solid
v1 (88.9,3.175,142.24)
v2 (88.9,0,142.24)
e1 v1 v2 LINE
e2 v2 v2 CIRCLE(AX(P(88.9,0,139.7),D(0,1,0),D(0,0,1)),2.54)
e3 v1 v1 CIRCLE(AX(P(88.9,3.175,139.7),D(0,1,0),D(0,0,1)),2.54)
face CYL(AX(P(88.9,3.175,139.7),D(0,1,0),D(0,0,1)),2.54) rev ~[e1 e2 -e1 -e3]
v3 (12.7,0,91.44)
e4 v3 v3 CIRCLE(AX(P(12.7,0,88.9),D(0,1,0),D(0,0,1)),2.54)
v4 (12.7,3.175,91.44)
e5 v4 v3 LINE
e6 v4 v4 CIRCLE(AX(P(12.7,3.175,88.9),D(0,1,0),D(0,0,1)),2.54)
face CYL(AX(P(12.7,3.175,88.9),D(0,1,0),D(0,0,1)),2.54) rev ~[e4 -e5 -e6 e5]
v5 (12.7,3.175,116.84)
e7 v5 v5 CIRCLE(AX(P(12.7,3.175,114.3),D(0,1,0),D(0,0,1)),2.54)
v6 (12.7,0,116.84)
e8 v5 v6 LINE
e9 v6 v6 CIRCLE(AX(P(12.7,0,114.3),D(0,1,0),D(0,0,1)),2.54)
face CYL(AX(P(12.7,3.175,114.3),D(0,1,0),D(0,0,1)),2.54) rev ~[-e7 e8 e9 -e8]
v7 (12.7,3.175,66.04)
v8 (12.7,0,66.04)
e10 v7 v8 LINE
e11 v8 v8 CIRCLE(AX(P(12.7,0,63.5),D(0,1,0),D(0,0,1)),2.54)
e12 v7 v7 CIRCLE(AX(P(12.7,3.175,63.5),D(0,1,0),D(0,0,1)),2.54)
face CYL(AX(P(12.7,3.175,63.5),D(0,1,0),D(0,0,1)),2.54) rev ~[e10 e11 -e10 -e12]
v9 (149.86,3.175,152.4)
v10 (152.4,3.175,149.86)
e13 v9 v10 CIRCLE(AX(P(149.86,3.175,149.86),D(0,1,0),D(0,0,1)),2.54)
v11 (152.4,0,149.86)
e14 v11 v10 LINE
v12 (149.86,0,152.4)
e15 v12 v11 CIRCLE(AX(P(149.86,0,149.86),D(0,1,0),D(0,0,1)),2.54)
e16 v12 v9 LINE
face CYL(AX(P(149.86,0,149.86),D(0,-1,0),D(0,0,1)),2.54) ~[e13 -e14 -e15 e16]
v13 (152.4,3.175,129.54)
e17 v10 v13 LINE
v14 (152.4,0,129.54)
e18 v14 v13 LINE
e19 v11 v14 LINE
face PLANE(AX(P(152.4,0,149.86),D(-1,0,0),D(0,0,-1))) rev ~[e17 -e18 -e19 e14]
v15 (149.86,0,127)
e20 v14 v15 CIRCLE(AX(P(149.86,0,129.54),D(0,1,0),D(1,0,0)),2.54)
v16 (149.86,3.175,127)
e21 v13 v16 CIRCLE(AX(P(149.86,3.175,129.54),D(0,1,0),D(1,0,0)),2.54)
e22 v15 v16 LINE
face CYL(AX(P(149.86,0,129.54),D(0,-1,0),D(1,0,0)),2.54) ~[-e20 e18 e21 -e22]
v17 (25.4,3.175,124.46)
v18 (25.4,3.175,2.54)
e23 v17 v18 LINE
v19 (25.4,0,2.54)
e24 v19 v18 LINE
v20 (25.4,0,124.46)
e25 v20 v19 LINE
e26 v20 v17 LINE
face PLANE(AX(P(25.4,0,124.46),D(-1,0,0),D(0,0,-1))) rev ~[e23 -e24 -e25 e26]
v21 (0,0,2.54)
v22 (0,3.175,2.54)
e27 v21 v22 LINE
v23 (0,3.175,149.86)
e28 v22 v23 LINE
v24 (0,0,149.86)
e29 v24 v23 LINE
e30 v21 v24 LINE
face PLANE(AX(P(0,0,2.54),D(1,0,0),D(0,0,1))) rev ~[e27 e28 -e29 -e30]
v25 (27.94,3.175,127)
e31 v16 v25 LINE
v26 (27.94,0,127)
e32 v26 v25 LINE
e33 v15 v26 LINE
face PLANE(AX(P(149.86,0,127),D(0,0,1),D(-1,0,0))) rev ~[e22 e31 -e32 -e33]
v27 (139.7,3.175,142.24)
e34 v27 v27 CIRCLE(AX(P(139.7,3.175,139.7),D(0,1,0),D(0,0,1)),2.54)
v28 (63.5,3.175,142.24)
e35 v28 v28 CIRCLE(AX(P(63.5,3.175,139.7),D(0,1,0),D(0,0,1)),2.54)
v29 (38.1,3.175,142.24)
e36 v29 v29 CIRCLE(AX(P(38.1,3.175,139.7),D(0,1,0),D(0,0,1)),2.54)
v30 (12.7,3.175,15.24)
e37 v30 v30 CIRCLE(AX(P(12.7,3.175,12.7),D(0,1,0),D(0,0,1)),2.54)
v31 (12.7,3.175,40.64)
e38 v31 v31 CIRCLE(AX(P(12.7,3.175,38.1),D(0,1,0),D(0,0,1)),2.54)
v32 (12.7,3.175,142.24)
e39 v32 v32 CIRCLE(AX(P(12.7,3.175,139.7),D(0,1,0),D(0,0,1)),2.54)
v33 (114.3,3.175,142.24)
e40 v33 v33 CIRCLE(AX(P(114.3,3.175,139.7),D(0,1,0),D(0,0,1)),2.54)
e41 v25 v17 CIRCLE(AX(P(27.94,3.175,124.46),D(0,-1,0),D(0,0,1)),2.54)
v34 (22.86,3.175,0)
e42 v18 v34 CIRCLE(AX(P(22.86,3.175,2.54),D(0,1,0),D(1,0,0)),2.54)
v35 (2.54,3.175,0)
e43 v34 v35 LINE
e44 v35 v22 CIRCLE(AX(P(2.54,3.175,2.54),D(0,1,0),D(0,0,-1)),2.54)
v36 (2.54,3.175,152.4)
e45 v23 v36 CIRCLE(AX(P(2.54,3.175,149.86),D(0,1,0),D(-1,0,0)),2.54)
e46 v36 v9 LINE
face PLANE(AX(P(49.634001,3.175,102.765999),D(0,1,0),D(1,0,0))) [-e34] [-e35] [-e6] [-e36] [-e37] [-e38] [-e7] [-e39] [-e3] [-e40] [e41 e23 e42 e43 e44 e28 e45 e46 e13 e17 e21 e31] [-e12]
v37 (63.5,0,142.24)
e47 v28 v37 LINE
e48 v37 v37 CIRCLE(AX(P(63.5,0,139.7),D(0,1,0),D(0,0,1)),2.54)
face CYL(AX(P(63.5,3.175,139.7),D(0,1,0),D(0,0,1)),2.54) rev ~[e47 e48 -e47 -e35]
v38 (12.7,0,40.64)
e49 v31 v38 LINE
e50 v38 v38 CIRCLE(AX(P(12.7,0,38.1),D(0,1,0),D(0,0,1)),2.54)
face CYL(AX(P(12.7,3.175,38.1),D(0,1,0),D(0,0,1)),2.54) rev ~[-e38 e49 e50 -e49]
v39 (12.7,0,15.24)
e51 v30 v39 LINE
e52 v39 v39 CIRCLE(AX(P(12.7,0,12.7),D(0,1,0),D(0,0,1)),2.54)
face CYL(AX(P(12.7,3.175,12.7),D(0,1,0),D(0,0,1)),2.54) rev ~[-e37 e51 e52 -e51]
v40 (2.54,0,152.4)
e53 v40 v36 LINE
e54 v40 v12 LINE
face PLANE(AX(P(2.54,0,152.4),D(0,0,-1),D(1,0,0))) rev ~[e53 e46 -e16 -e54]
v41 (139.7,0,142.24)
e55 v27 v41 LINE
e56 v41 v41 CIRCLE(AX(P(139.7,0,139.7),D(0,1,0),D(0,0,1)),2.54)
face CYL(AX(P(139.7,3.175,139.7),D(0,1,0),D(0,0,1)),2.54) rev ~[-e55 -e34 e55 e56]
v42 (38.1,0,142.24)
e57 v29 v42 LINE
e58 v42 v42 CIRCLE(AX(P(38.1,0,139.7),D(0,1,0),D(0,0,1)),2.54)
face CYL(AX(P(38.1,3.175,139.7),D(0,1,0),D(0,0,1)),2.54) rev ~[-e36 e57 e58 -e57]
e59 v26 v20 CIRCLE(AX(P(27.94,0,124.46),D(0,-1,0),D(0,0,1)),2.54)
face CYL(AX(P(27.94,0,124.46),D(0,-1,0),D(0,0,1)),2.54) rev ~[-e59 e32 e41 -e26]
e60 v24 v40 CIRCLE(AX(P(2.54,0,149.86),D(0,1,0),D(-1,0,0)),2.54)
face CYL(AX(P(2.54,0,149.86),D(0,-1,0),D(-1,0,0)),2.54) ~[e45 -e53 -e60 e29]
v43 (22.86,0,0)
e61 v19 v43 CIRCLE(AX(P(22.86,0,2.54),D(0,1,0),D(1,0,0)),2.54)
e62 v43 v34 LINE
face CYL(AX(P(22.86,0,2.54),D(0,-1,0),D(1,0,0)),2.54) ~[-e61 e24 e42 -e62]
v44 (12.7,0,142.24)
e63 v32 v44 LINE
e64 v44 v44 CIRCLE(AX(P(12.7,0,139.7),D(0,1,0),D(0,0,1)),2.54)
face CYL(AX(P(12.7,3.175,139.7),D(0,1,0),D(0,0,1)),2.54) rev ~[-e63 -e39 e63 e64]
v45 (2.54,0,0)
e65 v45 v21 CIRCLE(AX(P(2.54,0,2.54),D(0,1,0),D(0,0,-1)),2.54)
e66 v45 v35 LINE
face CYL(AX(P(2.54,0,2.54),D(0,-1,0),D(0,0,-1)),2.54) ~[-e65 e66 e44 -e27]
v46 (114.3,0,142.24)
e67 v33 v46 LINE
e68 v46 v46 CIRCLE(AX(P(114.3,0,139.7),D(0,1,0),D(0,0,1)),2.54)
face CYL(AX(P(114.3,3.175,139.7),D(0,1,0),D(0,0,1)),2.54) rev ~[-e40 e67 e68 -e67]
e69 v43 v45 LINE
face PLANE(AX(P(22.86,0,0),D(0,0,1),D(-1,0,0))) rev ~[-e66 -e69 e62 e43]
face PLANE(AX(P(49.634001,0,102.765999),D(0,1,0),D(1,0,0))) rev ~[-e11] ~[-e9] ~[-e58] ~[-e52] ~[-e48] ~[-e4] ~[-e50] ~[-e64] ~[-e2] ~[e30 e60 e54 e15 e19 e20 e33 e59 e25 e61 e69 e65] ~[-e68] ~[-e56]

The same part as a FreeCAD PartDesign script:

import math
import FreeCAD as App
import Part
import Sketcher

V = App.Vector
Q = App.Units.Quantity

doc = App.newDocument("Part")
body = doc.addObject("PartDesign::Body", "Body")

sketch1 = body.newObject("Sketcher::SketchObject", "Sketch")
sketch1.AttachmentSupport = (doc.getObject("XZ_Plane"), [""])
sketch1.MapMode = "FlatFace"
sketch1.addGeometry(Part.LineSegment(V(0, 2.54, 0), V(0, 149.86, 0)), False)
sketch1.addGeometry(Part.ArcOfCircle(Part.Circle(V(2.54, 149.86, 0), V(0, 0, 1), 2.54), math.radians(90), math.radians(180)), False)
sketch1.addGeometry(Part.LineSegment(V(2.54, 152.4, 0), V(149.86, 152.4, 0)), False)
sketch1.addGeometry(Part.ArcOfCircle(Part.Circle(V(149.86, 149.86, 0), V(0, 0, 1), 2.54), math.radians(0), math.radians(90)), False)
sketch1.addGeometry(Part.LineSegment(V(152.4, 149.86, 0), V(152.4, 129.54, 0)), False)
sketch1.addGeometry(Part.ArcOfCircle(Part.Circle(V(149.86, 129.54, 0), V(0, 0, 1), 2.54), math.radians(-90), math.radians(0)), False)
sketch1.addGeometry(Part.LineSegment(V(149.86, 127, 0), V(27.94, 127, 0)), False)
sketch1.addGeometry(Part.ArcOfCircle(Part.Circle(V(27.94, 124.46, 0), V(0, 0, 1), 2.54), math.radians(90), math.radians(180)), False)
sketch1.addGeometry(Part.LineSegment(V(25.4, 124.46, 0), V(25.4, 2.54, 0)), False)
sketch1.addGeometry(Part.ArcOfCircle(Part.Circle(V(22.86, 2.54, 0), V(0, 0, 1), 2.54), math.radians(-90), math.radians(0)), False)
sketch1.addGeometry(Part.LineSegment(V(22.86, 0, 0), V(2.54, 0, 0)), False)
sketch1.addGeometry(Part.ArcOfCircle(Part.Circle(V(2.54, 2.54, 0), V(0, 0, 1), 2.54), math.radians(-180), math.radians(-90)), False)
sketch1.addConstraint(Sketcher.Constraint("Tangent", 0, 2, 1, 2))
sketch1.addConstraint(Sketcher.Constraint("Tangent", 1, 1, 2, 1))
sketch1.addConstraint(Sketcher.Constraint("Tangent", 2, 2, 3, 2))
sketch1.addConstraint(Sketcher.Constraint("Tangent", 3, 1, 4, 1))
sketch1.addConstraint(Sketcher.Constraint("Tangent", 4, 2, 5, 2))
sketch1.addConstraint(Sketcher.Constraint("Tangent", 5, 1, 6, 1))
sketch1.addConstraint(Sketcher.Constraint("Tangent", 6, 2, 7, 1))
sketch1.addConstraint(Sketcher.Constraint("Tangent", 7, 2, 8, 1))
sketch1.addConstraint(Sketcher.Constraint("Tangent", 8, 2, 9, 2))
sketch1.addConstraint(Sketcher.Constraint("Tangent", 9, 1, 10, 1))
sketch1.addConstraint(Sketcher.Constraint("Tangent", 10, 2, 11, 2))
sketch1.addConstraint(Sketcher.Constraint("Tangent", 11, 1, 0, 1))
sketch1.addConstraint(Sketcher.Constraint("Vertical", 0))
sketch1.addConstraint(Sketcher.Constraint("Horizontal", 2))
sketch1.addConstraint(Sketcher.Constraint("Vertical", 4))
sketch1.addConstraint(Sketcher.Constraint("Horizontal", 6))
sketch1.addConstraint(Sketcher.Constraint("Vertical", 8))
sketch1.addConstraint(Sketcher.Constraint("Horizontal", 10))
sketch1.addConstraint(Sketcher.Constraint("Equal", 1, 3))
sketch1.addConstraint(Sketcher.Constraint("Equal", 3, 5))
sketch1.addConstraint(Sketcher.Constraint("Equal", 5, 7))
sketch1.addConstraint(Sketcher.Constraint("Equal", 7, 9))
sketch1.addConstraint(Sketcher.Constraint("Equal", 9, 11))
sketch1.addConstraint(Sketcher.Constraint("PointOnObject", 0, 2, -2))
sketch1.addConstraint(Sketcher.Constraint("PointOnObject", 9, 1, -1))
sketch1.addConstraint(Sketcher.Constraint("Equal", 2, 0))
sketch1.addConstraint(Sketcher.Constraint("Equal", 10, 4))
sketch1.addConstraint(Sketcher.Constraint("Radius", 1, Q("0.1 in")))
sketch1.addConstraint(Sketcher.Constraint("DistanceX", 2, 1, 2, 2, Q("5.8 in")))
sketch1.addConstraint(Sketcher.Constraint("DistanceX", 6, 2, 6, 1, Q("4.8 in")))
pad1 = body.newObject("PartDesign::Pad", "Pad")
pad1.Profile = sketch1
pad1.Length = Q("0.125 in")
pad1.Reversed = True

sketch2 = body.newObject("Sketcher::SketchObject", "Sketch001")
sketch2.AttachmentSupport = (doc.getObject("XZ_Plane"), [""])
sketch2.MapMode = "FlatFace"
sketch2.AttachmentOffset = App.Placement(V(0, 0, -0.125 * 25.4), App.Rotation())
sketch2.addGeometry(Part.Circle(V(12.7, 12.7, 0), V(0, 0, 1), 2.54), False)
sketch2.addConstraint(Sketcher.Constraint("Diameter", 0, Q("0.2 in")))
sketch2.addConstraint(Sketcher.Constraint("DistanceX", -1, 1, 0, 3, Q("0.5 in")))
sketch2.addConstraint(Sketcher.Constraint("DistanceY", -1, 1, 0, 3, Q("0.5 in")))
pocket1 = body.newObject("PartDesign::Pocket", "Pocket")
pocket1.Profile = sketch2
pocket1.Length = Q("0.125 in")
pocket1.Reversed = True
doc.recompute()

linearpattern = body.newObject("PartDesign::LinearPattern", "LinearPattern")
linearpattern.Originals = [pocket1]
linearpattern.Direction = (doc.getObject("Z_Axis"), [""])
linearpattern.Mode = "offset"
linearpattern.Offset = Q("1 in")
linearpattern.Occurrences = 6
body.Tip = linearpattern

sketch3 = body.newObject("Sketcher::SketchObject", "Sketch002")
sketch3.AttachmentSupport = (doc.getObject("XZ_Plane"), [""])
sketch3.MapMode = "FlatFace"
sketch3.AttachmentOffset = App.Placement(V(0, 0, -0.125 * 25.4), App.Rotation())
sketch3.addGeometry(Part.Circle(V(139.7, 139.7, 0), V(0, 0, 1), 2.54), False)
sketch3.addConstraint(Sketcher.Constraint("Diameter", 0, Q("0.2 in")))
sketch3.addConstraint(Sketcher.Constraint("DistanceX", -1, 1, 0, 3, Q("5.5 in")))
sketch3.addConstraint(Sketcher.Constraint("DistanceY", -1, 1, 0, 3, Q("5.5 in")))
pocket2 = body.newObject("PartDesign::Pocket", "Pocket001")
pocket2.Profile = sketch3
pocket2.Length = Q("0.125 in")
pocket2.Reversed = True
doc.recompute()

linearpattern2 = body.newObject("PartDesign::LinearPattern", "LinearPattern001")
linearpattern2.Originals = [pocket2]
linearpattern2.Direction = (doc.getObject("X_Axis"), [""])
linearpattern2.Mode = "offset"
linearpattern2.Offset = Q("1 in")
linearpattern2.Occurrences = 5
linearpattern2.Reversed = True
body.Tip = linearpattern2

doc.recompute()
